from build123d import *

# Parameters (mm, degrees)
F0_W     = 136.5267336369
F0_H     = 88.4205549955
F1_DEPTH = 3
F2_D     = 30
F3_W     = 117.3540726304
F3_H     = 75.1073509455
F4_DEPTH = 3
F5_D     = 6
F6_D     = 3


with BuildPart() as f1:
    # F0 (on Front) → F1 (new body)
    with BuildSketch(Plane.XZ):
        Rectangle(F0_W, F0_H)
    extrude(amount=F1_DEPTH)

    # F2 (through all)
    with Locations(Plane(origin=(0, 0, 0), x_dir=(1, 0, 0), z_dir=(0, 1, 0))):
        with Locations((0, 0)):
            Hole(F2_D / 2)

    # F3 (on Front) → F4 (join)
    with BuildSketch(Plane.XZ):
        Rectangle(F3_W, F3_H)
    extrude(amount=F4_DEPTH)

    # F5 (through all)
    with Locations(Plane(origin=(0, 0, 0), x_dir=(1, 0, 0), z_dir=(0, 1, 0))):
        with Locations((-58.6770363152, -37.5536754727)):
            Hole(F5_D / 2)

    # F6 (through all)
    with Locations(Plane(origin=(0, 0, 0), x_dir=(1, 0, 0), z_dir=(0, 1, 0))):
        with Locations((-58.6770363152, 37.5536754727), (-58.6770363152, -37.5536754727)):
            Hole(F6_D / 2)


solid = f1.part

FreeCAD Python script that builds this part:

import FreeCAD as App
import Part
import Sketcher
Q = App.Units.Quantity

doc = App.newDocument("Part")
params = doc.addObject("Spreadsheet::Sheet", "Params")
for row, (alias, value) in enumerate([
    ("pad1_length", "3 mm"),
    ("sketch2_diameter", "30 mm"),
    ("hole_diameter", "30 mm"),
    ("pad2_length", "3 mm"),
    ("sketch4_diameter", "6 mm"),
    ("hole2_diameter", "6 mm"),
    ("sketch5_diameter", "3 mm"),
    ("hole3_diameter", "3 mm"),
], start=1):
    params.set(f"A{row}", alias)
    params.set(f"B{row}", "=" + value)
    params.setAlias(f"B{row}", alias)

body = doc.addObject("PartDesign::Body", "Body")

sketch1 = body.newObject("Sketcher::SketchObject", "Sketch")
sketch1.AttachmentSupport = (doc.getObject("XZ_Plane"), [""])
sketch1.MapMode = "FlatFace"
sketch1.addGeometry([
    Part.LineSegment(App.Vector(-68, 44, 0), App.Vector(-68, -44, 0)),
    Part.LineSegment(App.Vector(-68, -44, 0), App.Vector(68, -44, 0)),
    Part.LineSegment(App.Vector(68, -44, 0), App.Vector(68, 44, 0)),
    Part.LineSegment(App.Vector(68, 44, 0), App.Vector(-68, 44, 0)),
], False)
sketch1.addConstraint([
    Sketcher.Constraint("Coincident", 0, 2, 1, 1),
    Sketcher.Constraint("Coincident", 1, 2, 2, 1),
    Sketcher.Constraint("Coincident", 2, 2, 3, 1),
    Sketcher.Constraint("Coincident", 3, 2, 0, 1),
    Sketcher.Constraint("Vertical", 0),
    Sketcher.Constraint("Horizontal", 1),
    Sketcher.Constraint("Vertical", 2),
    Sketcher.Constraint("Horizontal", 3),
    Sketcher.Constraint("Symmetric", 0, 2, 2, 2, -1, 1),
    Sketcher.Constraint("DistanceX", 1, 1, 1, 2, Q("136.526734 mm")),
    Sketcher.Constraint("DistanceY", 0, 2, 0, 1, Q("88.420555 mm")),
])
pad1 = body.newObject("PartDesign::Pad", "Pad")
pad1.Profile = sketch1
pad1.setExpression("Length", "Params.pad1_length")

sketch2 = body.newObject("Sketcher::SketchObject", "Sketch001")
sketch2.AttachmentSupport = (doc.getObject("XZ_Plane"), [""])
sketch2.MapMode = "FlatFace"
sketch2.addGeometry(Part.Circle(App.Vector(0, 0, 0), App.Vector(0, 0, 1), 15), False)
sketch2.addConstraint([
    Sketcher.Constraint("Coincident", 0, 3, -1, 1),
    Sketcher.Constraint("Diameter", 0, Q("30 mm")),
])
sketch2.setExpression("Constraints[1]", "Params.sketch2_diameter")
doc.recompute()
hole = body.newObject("PartDesign::Hole", "Hole")
hole.Profile = sketch2
hole.ThreadType = "None"
hole.setExpression("Diameter", "Params.hole_diameter")
hole.DepthType = "ThroughAll"
hole.Reversed = True

sketch3 = body.newObject("Sketcher::SketchObject", "Sketch002")
sketch3.AttachmentSupport = (doc.getObject("XZ_Plane"), [""])
sketch3.MapMode = "FlatFace"
sketch3.addGeometry([
    Part.LineSegment(App.Vector(-59, 38, 0), App.Vector(-59, -38, 0)),
    Part.LineSegment(App.Vector(-59, -38, 0), App.Vector(59, -38, 0)),
    Part.LineSegment(App.Vector(59, -38, 0), App.Vector(59, 38, 0)),
    Part.LineSegment(App.Vector(59, 38, 0), App.Vector(-59, 38, 0)),
], False)
sketch3.addConstraint([
    Sketcher.Constraint("Coincident", 0, 2, 1, 1),
    Sketcher.Constraint("Coincident", 1, 2, 2, 1),
    Sketcher.Constraint("Coincident", 2, 2, 3, 1),
    Sketcher.Constraint("Coincident", 3, 2, 0, 1),
    Sketcher.Constraint("Vertical", 0),
    Sketcher.Constraint("Horizontal", 1),
    Sketcher.Constraint("Vertical", 2),
    Sketcher.Constraint("Horizontal", 3),
    Sketcher.Constraint("Symmetric", 0, 2, 2, 2, -1, 1),
    Sketcher.Constraint("DistanceY", 0, 2, 0, 1, Q("75.107351 mm")),
    Sketcher.Constraint("DistanceX", 1, 1, 1, 2, Q("117.354073 mm")),
])
pad2 = body.newObject("PartDesign::Pad", "Pad001")
pad2.Profile = sketch3
pad2.setExpression("Length", "Params.pad2_length")

sketch4 = body.newObject("Sketcher::SketchObject", "Sketch003")
sketch4.AttachmentSupport = (doc.getObject("XZ_Plane"), [""])
sketch4.MapMode = "FlatFace"
sketch4.addGeometry(Part.Circle(App.Vector(-58.7, 37.6, 0), App.Vector(0, 0, 1), 3), False)
sketch4.addConstraint([
    Sketcher.Constraint("Diameter", 0, Q("6 mm")),
    Sketcher.Constraint("DistanceX", 0, 3, -1, 1, Q("58.677036 mm")),
    Sketcher.Constraint("DistanceY", -1, 1, 0, 3, Q("37.553675 mm")),
])
sketch4.setExpression("Constraints[0]", "Params.sketch4_diameter")
doc.recompute()
hole2 = body.newObject("PartDesign::Hole", "Hole001")
hole2.Profile = sketch4
hole2.ThreadType = "None"
hole2.setExpression("Diameter", "Params.hole2_diameter")
hole2.DepthType = "ThroughAll"
hole2.Reversed = True

sketch5 = body.newObject("Sketcher::SketchObject", "Sketch004")
sketch5.AttachmentSupport = (doc.getObject("XZ_Plane"), [""])
sketch5.MapMode = "FlatFace"
sketch5.addGeometry([
    Part.Circle(App.Vector(-58.7, -37.6, 0), App.Vector(0, 0, 1), 1.5),
    Part.Circle(App.Vector(-58.7, 37.6, 0), App.Vector(0, 0, 1), 1.5),
], False)
sketch5.addConstraint([
    Sketcher.Constraint("Equal", 0, 1),
    Sketcher.Constraint("Symmetric", 0, 3, 1, 3, -1),
    Sketcher.Constraint("Diameter", 0, Q("3 mm")),
    Sketcher.Constraint("DistanceY", 0, 3, 1, 3, Q("75.107351 mm")),
    Sketcher.Constraint("DistanceX", 0, 3, -1, 1, Q("58.677036 mm")),
])
sketch5.setExpression("Constraints[2]", "Params.sketch5_diameter")
doc.recompute()
hole3 = body.newObject("PartDesign::Hole", "Hole002")
hole3.Profile = sketch5
hole3.ThreadType = "None"
hole3.setExpression("Diameter", "Params.hole3_diameter")
hole3.DepthType = "ThroughAll"
hole3.Reversed = True

doc.recompute()
